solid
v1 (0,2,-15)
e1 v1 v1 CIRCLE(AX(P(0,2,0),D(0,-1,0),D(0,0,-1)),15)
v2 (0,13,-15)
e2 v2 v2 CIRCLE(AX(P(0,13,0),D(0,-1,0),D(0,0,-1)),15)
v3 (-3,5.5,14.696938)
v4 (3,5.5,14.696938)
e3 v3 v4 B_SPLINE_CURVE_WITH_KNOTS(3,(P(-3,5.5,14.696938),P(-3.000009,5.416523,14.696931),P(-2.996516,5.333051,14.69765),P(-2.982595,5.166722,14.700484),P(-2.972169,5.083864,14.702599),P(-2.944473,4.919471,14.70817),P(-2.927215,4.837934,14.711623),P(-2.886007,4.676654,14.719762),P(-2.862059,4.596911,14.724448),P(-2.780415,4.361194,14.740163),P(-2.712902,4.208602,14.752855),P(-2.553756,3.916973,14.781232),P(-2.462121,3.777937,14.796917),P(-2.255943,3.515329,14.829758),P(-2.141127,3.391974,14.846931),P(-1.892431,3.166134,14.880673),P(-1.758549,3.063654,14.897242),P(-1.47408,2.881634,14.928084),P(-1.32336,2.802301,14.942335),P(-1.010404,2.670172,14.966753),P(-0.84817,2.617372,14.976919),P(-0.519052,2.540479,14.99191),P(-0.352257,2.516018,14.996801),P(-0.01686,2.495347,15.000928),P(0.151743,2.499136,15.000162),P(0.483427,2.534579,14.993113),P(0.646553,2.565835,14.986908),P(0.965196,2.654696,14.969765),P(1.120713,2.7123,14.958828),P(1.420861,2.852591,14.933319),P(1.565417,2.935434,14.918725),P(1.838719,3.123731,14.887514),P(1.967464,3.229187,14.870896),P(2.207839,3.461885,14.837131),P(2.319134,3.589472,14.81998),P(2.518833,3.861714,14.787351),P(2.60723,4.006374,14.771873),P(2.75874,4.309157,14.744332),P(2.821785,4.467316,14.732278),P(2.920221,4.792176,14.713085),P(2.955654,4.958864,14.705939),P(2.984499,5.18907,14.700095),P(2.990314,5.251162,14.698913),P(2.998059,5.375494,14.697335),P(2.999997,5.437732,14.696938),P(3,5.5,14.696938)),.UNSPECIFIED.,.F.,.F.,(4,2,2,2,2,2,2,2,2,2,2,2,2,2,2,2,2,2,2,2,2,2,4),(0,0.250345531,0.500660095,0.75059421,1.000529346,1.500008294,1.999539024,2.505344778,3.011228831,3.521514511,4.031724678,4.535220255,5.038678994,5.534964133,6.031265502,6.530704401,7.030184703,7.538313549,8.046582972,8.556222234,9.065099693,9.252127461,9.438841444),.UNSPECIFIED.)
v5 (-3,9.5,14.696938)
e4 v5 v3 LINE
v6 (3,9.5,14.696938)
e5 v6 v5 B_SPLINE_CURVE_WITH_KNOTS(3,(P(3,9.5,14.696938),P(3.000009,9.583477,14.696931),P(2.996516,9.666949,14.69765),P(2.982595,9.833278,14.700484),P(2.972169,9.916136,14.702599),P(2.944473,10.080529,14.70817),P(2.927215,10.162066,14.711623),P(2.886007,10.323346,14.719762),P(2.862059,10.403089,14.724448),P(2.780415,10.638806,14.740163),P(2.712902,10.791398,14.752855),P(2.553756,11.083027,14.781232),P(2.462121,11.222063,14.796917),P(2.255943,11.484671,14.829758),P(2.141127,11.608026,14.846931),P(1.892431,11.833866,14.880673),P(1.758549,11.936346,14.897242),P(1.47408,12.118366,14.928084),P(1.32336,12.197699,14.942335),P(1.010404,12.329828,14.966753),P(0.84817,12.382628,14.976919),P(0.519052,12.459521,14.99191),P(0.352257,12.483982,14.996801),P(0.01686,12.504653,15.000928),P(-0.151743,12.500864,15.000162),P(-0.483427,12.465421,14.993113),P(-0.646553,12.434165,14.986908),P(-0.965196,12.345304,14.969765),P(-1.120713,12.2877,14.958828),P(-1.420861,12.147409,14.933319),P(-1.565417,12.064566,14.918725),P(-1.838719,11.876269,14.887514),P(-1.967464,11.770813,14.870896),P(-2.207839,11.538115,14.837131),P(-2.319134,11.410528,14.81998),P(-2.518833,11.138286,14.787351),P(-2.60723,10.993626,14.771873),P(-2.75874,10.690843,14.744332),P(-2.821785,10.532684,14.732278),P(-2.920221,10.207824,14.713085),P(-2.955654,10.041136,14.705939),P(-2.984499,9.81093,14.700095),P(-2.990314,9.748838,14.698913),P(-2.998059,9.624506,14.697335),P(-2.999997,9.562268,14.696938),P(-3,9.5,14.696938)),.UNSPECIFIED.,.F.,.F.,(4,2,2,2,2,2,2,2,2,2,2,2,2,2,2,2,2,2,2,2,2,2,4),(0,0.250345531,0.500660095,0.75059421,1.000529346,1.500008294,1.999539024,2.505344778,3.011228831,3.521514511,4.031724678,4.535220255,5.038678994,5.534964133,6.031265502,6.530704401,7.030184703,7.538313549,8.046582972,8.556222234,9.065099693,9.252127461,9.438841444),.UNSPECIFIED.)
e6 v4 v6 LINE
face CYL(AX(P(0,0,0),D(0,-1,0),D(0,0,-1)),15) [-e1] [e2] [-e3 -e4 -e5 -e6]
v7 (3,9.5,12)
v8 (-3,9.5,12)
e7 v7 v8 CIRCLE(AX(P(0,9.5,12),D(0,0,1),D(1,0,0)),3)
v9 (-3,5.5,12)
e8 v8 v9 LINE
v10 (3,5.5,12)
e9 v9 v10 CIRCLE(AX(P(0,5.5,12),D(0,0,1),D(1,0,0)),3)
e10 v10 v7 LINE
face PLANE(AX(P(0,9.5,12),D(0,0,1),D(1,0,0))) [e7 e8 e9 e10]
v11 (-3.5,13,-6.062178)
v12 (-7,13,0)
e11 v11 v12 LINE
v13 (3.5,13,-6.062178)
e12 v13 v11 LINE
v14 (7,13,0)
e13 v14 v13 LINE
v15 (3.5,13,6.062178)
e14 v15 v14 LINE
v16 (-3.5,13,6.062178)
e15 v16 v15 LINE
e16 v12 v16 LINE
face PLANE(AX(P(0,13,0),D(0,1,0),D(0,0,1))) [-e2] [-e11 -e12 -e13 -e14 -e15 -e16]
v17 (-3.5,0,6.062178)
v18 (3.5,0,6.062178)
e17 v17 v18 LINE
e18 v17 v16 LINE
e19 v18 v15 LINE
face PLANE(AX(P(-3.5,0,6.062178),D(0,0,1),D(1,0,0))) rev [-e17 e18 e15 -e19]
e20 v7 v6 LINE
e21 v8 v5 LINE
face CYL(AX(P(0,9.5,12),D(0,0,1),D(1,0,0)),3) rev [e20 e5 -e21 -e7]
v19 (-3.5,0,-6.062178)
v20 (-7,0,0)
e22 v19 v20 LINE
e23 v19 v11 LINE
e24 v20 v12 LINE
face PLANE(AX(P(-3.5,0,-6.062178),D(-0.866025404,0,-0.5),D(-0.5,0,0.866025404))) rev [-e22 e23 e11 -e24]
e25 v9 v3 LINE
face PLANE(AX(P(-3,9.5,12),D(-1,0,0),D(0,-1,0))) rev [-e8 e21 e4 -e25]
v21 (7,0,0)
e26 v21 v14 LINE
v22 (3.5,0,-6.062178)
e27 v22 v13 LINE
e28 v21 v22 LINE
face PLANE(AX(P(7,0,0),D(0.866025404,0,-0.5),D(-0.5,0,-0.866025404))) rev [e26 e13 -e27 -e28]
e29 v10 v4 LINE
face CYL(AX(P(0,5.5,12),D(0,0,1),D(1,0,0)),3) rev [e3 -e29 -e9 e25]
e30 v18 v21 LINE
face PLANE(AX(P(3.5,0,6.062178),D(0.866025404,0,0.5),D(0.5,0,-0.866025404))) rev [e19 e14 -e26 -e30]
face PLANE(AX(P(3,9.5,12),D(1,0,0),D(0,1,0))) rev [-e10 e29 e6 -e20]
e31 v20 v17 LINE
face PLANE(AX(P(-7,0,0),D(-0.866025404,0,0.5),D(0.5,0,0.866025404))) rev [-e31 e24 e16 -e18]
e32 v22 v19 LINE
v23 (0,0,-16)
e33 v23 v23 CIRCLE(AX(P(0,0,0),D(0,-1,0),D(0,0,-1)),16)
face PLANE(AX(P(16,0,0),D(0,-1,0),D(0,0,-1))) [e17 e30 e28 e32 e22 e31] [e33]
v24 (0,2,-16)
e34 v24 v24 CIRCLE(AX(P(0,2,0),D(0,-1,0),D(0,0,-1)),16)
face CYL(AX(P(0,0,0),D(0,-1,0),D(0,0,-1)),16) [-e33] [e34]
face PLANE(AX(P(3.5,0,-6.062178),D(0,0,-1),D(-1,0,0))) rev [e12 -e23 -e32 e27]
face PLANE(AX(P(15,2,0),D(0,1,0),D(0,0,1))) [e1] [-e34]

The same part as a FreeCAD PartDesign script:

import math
import FreeCAD as App
import Part
import Sketcher
Q = App.Units.Quantity


def add_polygon(sketch, points):
    """Adds a closed chain of lines whose ends are joined by coincident constraints."""
    first, n = sketch.GeometryCount, len(points)
    for a, b in zip(points, points[1:] + points[:1]):
        sketch.addGeometry(Part.LineSegment(App.Vector(*a, 0), App.Vector(*b, 0)), False)
    for i in range(n):
        sketch.addConstraint(Sketcher.Constraint("Coincident", first + i, 2, first + (i + 1) % n, 1))

doc = App.newDocument("Part")
body = doc.addObject("PartDesign::Body", "Body")

sketch1 = doc.addObject("Sketcher::SketchObject", "Sketch")
body.addObject(sketch1)
sketch1.AttachmentSupport = (doc.XY_Plane, [""])
sketch1.MapMode = "FlatFace"
add_polygon(sketch1, [(15, 13), (0, 13), (0, 0), (16, 0), (16, 2), (15, 2)])
sketch1.addConstraint(Sketcher.Constraint("Horizontal", 0))
sketch1.addConstraint(Sketcher.Constraint("Vertical", 1))
sketch1.addConstraint(Sketcher.Constraint("Horizontal", 2))
sketch1.addConstraint(Sketcher.Constraint("Vertical", 3))
sketch1.addConstraint(Sketcher.Constraint("Horizontal", 4))
sketch1.addConstraint(Sketcher.Constraint("Vertical", 5))
sketch1.addConstraint(Sketcher.Constraint("Coincident", 1, 2, -1, 1))
sketch1.addConstraint(Sketcher.Constraint("DistanceX", 0, 2, 0, 1, Q("15 mm")))
sketch1.addConstraint(Sketcher.Constraint("DistanceX", 2, 1, 2, 2, Q("16 mm")))
sketch1.addConstraint(Sketcher.Constraint("DistanceY", 1, 2, 1, 1, Q("13 mm")))
sketch1.addConstraint(Sketcher.Constraint("DistanceY", 3, 1, 3, 2, Q("2 mm")))
revolution = doc.addObject("PartDesign::Revolution", "Revolution")
body.addObject(revolution)
revolution.Profile = sketch1
revolution.ReferenceAxis = (sketch1, ["V_Axis"])
revolution.Angle = 360

sketch2 = doc.addObject("Sketcher::SketchObject", "Sketch001")
body.addObject(sketch2)
sketch2.AttachmentSupport = (doc.XZ_Plane, [""])
sketch2.MapMode = "FlatFace"
sketch2.AttachmentOffset = App.Placement(App.Vector(0, 0, -13), App.Rotation())
add_polygon(sketch2, [(-7, 0), (-3.5, 6.062178), (3.5, 6.062178), (7, 0), (3.5, -6.062178), (-3.5, -6.062178)])
sketch2.addConstraint(Sketcher.Constraint("Horizontal", 1))
sketch2.addConstraint(Sketcher.Constraint("Horizontal", 4))
sketch2.addConstraint(Sketcher.Constraint("Symmetric", 0, 2, 3, 2, -1, 1))
sketch2.addConstraint(Sketcher.Constraint("Symmetric", 2, 2, 5, 2, -1, 1))
sketch2.addConstraint(Sketcher.Constraint("PointOnObject", 2, 2, -1))
sketch2.addConstraint(Sketcher.Constraint("Parallel", 2, 5))
sketch2.addConstraint(Sketcher.Constraint("Vertical", 1, 2, 3, 2))
sketch2.addConstraint(Sketcher.Constraint("DistanceX", 1, 1, 1, 2, Q("7 mm")))
sketch2.addConstraint(Sketcher.Constraint("Angle", 0, Q("60 deg")))
sketch2.addConstraint(Sketcher.Constraint("Distance", 0, Q("7 mm")))
pocket1 = doc.addObject("PartDesign::Pocket", "Pocket")
body.addObject(pocket1)
pocket1.Profile = sketch2
pocket1.Type = "ThroughAll"
pocket1.Reversed = True

sketch3 = doc.addObject("Sketcher::SketchObject", "Sketch002")
body.addObject(sketch3)
sketch3.AttachmentSupport = (doc.XY_Plane, [""])
sketch3.MapMode = "FlatFace"
sketch3.AttachmentOffset = App.Placement(App.Vector(0, 0, 15), App.Rotation())
sketch3.addGeometry(Part.LineSegment(App.Vector(3, 5.5, 0), App.Vector(3, 9.5, 0)), False)
sketch3.addGeometry(Part.ArcOfCircle(Part.Circle(App.Vector(0, 9.5, 0), App.Vector(0, 0, 1), 3), math.radians(0), math.radians(180)), False)
sketch3.addGeometry(Part.LineSegment(App.Vector(-3, 9.5, 0), App.Vector(-3, 5.5, 0)), False)
sketch3.addGeometry(Part.ArcOfCircle(Part.Circle(App.Vector(0, 5.5, 0), App.Vector(0, 0, 1), 3), math.radians(180), math.radians(360)), False)
sketch3.addConstraint(Sketcher.Constraint("Tangent", 0, 2, 1, 1))
sketch3.addConstraint(Sketcher.Constraint("Tangent", 1, 2, 2, 1))
sketch3.addConstraint(Sketcher.Constraint("Tangent", 2, 2, 3, 1))
sketch3.addConstraint(Sketcher.Constraint("Tangent", 3, 2, 0, 1))
sketch3.addConstraint(Sketcher.Constraint("Vertical", 0))
sketch3.addConstraint(Sketcher.Constraint("Vertical", 2))
sketch3.addConstraint(Sketcher.Constraint("PointOnObject", 1, 3, -2))
sketch3.addConstraint(Sketcher.Constraint("Radius", 1, Q("3 mm")))
sketch3.addConstraint(Sketcher.Constraint("DistanceY", 0, 1, 0, 2, Q("4 mm")))
sketch3.addConstraint(Sketcher.Constraint("DistanceY", -1, 1, 1, 3, Q("9.5 mm")))
pocket2 = doc.addObject("PartDesign::Pocket", "Pocket001")
body.addObject(pocket2)
pocket2.Profile = sketch3
pocket2.Length = 3

doc.recompute()
